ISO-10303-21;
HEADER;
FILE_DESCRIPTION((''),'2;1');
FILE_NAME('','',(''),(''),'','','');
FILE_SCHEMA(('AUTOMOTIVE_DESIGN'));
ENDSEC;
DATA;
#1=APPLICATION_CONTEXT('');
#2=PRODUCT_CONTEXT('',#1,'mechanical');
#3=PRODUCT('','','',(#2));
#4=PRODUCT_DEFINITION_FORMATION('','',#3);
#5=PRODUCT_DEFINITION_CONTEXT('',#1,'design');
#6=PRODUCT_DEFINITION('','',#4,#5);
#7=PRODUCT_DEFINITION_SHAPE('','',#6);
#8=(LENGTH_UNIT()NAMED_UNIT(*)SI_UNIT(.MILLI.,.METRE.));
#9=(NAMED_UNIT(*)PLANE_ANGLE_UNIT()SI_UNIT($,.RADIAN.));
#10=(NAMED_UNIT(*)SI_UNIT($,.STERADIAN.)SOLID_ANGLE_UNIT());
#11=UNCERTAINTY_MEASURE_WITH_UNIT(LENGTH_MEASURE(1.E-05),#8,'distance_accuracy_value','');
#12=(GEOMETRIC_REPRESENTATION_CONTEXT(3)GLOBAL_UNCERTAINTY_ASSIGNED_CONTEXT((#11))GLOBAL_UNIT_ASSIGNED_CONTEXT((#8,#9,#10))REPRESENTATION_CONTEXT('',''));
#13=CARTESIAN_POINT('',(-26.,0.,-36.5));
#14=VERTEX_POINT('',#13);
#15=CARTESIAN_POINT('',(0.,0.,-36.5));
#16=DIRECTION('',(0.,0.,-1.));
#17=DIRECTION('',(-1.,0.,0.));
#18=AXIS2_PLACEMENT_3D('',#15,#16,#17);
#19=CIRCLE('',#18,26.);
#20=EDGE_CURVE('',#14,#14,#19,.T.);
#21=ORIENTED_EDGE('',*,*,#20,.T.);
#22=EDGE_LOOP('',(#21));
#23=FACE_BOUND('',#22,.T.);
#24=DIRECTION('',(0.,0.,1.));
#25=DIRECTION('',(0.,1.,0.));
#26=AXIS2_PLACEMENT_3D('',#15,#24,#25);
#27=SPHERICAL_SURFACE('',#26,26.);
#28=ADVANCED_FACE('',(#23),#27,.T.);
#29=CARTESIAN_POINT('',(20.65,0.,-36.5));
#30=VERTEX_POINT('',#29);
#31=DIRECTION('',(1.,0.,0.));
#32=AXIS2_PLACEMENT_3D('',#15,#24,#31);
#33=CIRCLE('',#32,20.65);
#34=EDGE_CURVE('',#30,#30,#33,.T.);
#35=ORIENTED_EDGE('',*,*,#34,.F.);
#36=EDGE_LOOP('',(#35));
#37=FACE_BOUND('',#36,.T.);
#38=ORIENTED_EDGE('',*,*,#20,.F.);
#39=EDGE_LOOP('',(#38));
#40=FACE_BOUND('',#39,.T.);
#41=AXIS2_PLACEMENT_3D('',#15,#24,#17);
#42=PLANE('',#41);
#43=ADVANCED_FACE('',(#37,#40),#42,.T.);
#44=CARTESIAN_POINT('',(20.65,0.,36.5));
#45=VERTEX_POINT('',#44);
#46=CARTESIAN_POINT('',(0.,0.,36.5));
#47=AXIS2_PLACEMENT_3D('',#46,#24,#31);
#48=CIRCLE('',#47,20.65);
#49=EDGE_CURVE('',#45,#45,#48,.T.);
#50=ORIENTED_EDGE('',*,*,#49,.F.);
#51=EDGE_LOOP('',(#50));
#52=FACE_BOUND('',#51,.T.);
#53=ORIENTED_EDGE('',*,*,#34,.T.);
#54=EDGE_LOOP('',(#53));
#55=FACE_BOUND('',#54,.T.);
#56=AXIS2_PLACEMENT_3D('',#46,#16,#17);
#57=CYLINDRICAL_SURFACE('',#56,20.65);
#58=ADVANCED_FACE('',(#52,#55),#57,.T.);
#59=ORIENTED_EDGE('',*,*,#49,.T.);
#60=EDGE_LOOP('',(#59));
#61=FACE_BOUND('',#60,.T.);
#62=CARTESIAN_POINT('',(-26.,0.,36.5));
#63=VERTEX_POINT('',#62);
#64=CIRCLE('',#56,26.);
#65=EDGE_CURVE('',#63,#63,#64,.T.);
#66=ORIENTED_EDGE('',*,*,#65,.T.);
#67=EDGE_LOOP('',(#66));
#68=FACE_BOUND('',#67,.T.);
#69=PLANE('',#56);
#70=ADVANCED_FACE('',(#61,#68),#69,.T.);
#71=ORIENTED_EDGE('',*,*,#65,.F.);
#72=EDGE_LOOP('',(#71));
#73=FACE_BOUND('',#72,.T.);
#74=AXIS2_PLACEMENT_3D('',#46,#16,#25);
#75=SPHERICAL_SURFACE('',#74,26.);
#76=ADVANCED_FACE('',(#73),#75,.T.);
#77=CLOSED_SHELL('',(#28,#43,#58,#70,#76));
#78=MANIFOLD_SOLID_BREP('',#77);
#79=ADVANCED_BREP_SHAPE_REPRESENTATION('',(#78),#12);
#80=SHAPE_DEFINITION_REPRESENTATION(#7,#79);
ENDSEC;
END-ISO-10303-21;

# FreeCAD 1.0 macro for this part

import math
import FreeCAD as App
import Part
import Sketcher
from FreeCAD import Vector

doc = App.newDocument("Part")
body = doc.addObject("PartDesign::Body", "Body")

# Sketch on XY plane
sketch1 = body.newObject("Sketcher::SketchObject", "Sketch")
sketch1.AttachmentSupport = (doc.getObject("XY_Plane"), [""])
sketch1.MapMode = "FlatFace"
sketch1.addGeometry(Part.Circle(Vector(0, 0, 0), Vector(0, 0, 1), 21), False)
sketch1.addConstraint([
    Sketcher.Constraint("Coincident", 0, 3, -1, 1),
    Sketcher.Constraint("Diameter", 0, 41.3),
])
pad1 = body.newObject("PartDesign::Pad", "Pad")
pad1.Profile = sketch1
pad1.Length = 73
pad1.Midplane = True

# Sketch on YZ plane
sketch2 = body.newObject("Sketcher::SketchObject", "Sketch001")
sketch2.AttachmentSupport = (doc.getObject("YZ_Plane"), [""])
sketch2.MapMode = "FlatFace"
sketch2.addGeometry([
    Part.LineSegment(Vector(0, 62, 0), Vector(0, 36, 0)),
    Part.LineSegment(Vector(0, 36, 0), Vector(26, 36, 0)),
    Part.ArcOfCircle(Part.Circle(Vector(0, 37, 0), Vector(0, 0, 1), 26), math.radians(0), math.radians(90)),
], False)
sketch2.addConstraint([
    Sketcher.Constraint("Coincident", 0, 2, 1, 1),
    Sketcher.Constraint("Coincident", 1, 2, 2, 1),
    Sketcher.Constraint("Coincident", 2, 2, 0, 1),
    Sketcher.Constraint("Vertical", 0),
    Sketcher.Constraint("Horizontal", 1),
    Sketcher.Constraint("Coincident", 0, 2, 2, 3),
    Sketcher.Constraint("PointOnObject", 2, 3, -2),
    Sketcher.Constraint("Radius", 2, 26.0),
    Sketcher.Constraint("DistanceY", -1, 1, 2, 3, 36.5),
])
revolution = body.newObject("PartDesign::Revolution", "Revolution")
revolution.Profile = sketch2
revolution.ReferenceAxis = (sketch2, ["V_Axis"])
revolution.Angle = 360
body2 = doc.addObject("PartDesign::Body", "Body001")
doc.recompute()

body2.BaseFeature = body
doc.recompute()

mirroring = doc.addObject("Part::Mirroring", "Mirroring")
mirroring.Source = body
mirroring.Base = Vector(0, 0, 0)
mirroring.Normal = Vector(0, 0, 1)
body3 = doc.addObject("PartDesign::Body", "Body002")
body3.BaseFeature = mirroring
boolean = body2.newObject("PartDesign::Boolean", "Boolean")
boolean.Type = "Fuse"
boolean.addObjects([body3])
doc.recompute()
mirroring.Visibility = False

doc.recompute()
